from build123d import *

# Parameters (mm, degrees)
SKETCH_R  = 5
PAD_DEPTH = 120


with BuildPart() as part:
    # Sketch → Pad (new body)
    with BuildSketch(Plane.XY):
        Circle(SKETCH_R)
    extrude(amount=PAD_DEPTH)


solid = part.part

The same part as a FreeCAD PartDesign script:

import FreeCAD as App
import Part
import Sketcher

V = App.Vector
Q = App.Units.Quantity

doc = App.newDocument("Part")
body = doc.addObject("PartDesign::Body", "Body")

# Sketch on XY plane
sketch1 = body.newObject("Sketcher::SketchObject", "Sketch")
sketch1.AttachmentSupport = (doc.getObject("XY_Plane"), [""])
sketch1.MapMode = "FlatFace"
sketch1.addGeometry(Part.Circle(V(0, 0, 0), V(0, 0, 1), 5), False)
sketch1.addConstraint([
    Sketcher.Constraint("Coincident", 0, 3, -1, 1),
    Sketcher.Constraint("Diameter", 0, Q("10 mm")),
])
pad1 = body.newObject("PartDesign::Pad", "Pad")
pad1.Profile = sketch1
pad1.Length = 120

doc.recompute()
